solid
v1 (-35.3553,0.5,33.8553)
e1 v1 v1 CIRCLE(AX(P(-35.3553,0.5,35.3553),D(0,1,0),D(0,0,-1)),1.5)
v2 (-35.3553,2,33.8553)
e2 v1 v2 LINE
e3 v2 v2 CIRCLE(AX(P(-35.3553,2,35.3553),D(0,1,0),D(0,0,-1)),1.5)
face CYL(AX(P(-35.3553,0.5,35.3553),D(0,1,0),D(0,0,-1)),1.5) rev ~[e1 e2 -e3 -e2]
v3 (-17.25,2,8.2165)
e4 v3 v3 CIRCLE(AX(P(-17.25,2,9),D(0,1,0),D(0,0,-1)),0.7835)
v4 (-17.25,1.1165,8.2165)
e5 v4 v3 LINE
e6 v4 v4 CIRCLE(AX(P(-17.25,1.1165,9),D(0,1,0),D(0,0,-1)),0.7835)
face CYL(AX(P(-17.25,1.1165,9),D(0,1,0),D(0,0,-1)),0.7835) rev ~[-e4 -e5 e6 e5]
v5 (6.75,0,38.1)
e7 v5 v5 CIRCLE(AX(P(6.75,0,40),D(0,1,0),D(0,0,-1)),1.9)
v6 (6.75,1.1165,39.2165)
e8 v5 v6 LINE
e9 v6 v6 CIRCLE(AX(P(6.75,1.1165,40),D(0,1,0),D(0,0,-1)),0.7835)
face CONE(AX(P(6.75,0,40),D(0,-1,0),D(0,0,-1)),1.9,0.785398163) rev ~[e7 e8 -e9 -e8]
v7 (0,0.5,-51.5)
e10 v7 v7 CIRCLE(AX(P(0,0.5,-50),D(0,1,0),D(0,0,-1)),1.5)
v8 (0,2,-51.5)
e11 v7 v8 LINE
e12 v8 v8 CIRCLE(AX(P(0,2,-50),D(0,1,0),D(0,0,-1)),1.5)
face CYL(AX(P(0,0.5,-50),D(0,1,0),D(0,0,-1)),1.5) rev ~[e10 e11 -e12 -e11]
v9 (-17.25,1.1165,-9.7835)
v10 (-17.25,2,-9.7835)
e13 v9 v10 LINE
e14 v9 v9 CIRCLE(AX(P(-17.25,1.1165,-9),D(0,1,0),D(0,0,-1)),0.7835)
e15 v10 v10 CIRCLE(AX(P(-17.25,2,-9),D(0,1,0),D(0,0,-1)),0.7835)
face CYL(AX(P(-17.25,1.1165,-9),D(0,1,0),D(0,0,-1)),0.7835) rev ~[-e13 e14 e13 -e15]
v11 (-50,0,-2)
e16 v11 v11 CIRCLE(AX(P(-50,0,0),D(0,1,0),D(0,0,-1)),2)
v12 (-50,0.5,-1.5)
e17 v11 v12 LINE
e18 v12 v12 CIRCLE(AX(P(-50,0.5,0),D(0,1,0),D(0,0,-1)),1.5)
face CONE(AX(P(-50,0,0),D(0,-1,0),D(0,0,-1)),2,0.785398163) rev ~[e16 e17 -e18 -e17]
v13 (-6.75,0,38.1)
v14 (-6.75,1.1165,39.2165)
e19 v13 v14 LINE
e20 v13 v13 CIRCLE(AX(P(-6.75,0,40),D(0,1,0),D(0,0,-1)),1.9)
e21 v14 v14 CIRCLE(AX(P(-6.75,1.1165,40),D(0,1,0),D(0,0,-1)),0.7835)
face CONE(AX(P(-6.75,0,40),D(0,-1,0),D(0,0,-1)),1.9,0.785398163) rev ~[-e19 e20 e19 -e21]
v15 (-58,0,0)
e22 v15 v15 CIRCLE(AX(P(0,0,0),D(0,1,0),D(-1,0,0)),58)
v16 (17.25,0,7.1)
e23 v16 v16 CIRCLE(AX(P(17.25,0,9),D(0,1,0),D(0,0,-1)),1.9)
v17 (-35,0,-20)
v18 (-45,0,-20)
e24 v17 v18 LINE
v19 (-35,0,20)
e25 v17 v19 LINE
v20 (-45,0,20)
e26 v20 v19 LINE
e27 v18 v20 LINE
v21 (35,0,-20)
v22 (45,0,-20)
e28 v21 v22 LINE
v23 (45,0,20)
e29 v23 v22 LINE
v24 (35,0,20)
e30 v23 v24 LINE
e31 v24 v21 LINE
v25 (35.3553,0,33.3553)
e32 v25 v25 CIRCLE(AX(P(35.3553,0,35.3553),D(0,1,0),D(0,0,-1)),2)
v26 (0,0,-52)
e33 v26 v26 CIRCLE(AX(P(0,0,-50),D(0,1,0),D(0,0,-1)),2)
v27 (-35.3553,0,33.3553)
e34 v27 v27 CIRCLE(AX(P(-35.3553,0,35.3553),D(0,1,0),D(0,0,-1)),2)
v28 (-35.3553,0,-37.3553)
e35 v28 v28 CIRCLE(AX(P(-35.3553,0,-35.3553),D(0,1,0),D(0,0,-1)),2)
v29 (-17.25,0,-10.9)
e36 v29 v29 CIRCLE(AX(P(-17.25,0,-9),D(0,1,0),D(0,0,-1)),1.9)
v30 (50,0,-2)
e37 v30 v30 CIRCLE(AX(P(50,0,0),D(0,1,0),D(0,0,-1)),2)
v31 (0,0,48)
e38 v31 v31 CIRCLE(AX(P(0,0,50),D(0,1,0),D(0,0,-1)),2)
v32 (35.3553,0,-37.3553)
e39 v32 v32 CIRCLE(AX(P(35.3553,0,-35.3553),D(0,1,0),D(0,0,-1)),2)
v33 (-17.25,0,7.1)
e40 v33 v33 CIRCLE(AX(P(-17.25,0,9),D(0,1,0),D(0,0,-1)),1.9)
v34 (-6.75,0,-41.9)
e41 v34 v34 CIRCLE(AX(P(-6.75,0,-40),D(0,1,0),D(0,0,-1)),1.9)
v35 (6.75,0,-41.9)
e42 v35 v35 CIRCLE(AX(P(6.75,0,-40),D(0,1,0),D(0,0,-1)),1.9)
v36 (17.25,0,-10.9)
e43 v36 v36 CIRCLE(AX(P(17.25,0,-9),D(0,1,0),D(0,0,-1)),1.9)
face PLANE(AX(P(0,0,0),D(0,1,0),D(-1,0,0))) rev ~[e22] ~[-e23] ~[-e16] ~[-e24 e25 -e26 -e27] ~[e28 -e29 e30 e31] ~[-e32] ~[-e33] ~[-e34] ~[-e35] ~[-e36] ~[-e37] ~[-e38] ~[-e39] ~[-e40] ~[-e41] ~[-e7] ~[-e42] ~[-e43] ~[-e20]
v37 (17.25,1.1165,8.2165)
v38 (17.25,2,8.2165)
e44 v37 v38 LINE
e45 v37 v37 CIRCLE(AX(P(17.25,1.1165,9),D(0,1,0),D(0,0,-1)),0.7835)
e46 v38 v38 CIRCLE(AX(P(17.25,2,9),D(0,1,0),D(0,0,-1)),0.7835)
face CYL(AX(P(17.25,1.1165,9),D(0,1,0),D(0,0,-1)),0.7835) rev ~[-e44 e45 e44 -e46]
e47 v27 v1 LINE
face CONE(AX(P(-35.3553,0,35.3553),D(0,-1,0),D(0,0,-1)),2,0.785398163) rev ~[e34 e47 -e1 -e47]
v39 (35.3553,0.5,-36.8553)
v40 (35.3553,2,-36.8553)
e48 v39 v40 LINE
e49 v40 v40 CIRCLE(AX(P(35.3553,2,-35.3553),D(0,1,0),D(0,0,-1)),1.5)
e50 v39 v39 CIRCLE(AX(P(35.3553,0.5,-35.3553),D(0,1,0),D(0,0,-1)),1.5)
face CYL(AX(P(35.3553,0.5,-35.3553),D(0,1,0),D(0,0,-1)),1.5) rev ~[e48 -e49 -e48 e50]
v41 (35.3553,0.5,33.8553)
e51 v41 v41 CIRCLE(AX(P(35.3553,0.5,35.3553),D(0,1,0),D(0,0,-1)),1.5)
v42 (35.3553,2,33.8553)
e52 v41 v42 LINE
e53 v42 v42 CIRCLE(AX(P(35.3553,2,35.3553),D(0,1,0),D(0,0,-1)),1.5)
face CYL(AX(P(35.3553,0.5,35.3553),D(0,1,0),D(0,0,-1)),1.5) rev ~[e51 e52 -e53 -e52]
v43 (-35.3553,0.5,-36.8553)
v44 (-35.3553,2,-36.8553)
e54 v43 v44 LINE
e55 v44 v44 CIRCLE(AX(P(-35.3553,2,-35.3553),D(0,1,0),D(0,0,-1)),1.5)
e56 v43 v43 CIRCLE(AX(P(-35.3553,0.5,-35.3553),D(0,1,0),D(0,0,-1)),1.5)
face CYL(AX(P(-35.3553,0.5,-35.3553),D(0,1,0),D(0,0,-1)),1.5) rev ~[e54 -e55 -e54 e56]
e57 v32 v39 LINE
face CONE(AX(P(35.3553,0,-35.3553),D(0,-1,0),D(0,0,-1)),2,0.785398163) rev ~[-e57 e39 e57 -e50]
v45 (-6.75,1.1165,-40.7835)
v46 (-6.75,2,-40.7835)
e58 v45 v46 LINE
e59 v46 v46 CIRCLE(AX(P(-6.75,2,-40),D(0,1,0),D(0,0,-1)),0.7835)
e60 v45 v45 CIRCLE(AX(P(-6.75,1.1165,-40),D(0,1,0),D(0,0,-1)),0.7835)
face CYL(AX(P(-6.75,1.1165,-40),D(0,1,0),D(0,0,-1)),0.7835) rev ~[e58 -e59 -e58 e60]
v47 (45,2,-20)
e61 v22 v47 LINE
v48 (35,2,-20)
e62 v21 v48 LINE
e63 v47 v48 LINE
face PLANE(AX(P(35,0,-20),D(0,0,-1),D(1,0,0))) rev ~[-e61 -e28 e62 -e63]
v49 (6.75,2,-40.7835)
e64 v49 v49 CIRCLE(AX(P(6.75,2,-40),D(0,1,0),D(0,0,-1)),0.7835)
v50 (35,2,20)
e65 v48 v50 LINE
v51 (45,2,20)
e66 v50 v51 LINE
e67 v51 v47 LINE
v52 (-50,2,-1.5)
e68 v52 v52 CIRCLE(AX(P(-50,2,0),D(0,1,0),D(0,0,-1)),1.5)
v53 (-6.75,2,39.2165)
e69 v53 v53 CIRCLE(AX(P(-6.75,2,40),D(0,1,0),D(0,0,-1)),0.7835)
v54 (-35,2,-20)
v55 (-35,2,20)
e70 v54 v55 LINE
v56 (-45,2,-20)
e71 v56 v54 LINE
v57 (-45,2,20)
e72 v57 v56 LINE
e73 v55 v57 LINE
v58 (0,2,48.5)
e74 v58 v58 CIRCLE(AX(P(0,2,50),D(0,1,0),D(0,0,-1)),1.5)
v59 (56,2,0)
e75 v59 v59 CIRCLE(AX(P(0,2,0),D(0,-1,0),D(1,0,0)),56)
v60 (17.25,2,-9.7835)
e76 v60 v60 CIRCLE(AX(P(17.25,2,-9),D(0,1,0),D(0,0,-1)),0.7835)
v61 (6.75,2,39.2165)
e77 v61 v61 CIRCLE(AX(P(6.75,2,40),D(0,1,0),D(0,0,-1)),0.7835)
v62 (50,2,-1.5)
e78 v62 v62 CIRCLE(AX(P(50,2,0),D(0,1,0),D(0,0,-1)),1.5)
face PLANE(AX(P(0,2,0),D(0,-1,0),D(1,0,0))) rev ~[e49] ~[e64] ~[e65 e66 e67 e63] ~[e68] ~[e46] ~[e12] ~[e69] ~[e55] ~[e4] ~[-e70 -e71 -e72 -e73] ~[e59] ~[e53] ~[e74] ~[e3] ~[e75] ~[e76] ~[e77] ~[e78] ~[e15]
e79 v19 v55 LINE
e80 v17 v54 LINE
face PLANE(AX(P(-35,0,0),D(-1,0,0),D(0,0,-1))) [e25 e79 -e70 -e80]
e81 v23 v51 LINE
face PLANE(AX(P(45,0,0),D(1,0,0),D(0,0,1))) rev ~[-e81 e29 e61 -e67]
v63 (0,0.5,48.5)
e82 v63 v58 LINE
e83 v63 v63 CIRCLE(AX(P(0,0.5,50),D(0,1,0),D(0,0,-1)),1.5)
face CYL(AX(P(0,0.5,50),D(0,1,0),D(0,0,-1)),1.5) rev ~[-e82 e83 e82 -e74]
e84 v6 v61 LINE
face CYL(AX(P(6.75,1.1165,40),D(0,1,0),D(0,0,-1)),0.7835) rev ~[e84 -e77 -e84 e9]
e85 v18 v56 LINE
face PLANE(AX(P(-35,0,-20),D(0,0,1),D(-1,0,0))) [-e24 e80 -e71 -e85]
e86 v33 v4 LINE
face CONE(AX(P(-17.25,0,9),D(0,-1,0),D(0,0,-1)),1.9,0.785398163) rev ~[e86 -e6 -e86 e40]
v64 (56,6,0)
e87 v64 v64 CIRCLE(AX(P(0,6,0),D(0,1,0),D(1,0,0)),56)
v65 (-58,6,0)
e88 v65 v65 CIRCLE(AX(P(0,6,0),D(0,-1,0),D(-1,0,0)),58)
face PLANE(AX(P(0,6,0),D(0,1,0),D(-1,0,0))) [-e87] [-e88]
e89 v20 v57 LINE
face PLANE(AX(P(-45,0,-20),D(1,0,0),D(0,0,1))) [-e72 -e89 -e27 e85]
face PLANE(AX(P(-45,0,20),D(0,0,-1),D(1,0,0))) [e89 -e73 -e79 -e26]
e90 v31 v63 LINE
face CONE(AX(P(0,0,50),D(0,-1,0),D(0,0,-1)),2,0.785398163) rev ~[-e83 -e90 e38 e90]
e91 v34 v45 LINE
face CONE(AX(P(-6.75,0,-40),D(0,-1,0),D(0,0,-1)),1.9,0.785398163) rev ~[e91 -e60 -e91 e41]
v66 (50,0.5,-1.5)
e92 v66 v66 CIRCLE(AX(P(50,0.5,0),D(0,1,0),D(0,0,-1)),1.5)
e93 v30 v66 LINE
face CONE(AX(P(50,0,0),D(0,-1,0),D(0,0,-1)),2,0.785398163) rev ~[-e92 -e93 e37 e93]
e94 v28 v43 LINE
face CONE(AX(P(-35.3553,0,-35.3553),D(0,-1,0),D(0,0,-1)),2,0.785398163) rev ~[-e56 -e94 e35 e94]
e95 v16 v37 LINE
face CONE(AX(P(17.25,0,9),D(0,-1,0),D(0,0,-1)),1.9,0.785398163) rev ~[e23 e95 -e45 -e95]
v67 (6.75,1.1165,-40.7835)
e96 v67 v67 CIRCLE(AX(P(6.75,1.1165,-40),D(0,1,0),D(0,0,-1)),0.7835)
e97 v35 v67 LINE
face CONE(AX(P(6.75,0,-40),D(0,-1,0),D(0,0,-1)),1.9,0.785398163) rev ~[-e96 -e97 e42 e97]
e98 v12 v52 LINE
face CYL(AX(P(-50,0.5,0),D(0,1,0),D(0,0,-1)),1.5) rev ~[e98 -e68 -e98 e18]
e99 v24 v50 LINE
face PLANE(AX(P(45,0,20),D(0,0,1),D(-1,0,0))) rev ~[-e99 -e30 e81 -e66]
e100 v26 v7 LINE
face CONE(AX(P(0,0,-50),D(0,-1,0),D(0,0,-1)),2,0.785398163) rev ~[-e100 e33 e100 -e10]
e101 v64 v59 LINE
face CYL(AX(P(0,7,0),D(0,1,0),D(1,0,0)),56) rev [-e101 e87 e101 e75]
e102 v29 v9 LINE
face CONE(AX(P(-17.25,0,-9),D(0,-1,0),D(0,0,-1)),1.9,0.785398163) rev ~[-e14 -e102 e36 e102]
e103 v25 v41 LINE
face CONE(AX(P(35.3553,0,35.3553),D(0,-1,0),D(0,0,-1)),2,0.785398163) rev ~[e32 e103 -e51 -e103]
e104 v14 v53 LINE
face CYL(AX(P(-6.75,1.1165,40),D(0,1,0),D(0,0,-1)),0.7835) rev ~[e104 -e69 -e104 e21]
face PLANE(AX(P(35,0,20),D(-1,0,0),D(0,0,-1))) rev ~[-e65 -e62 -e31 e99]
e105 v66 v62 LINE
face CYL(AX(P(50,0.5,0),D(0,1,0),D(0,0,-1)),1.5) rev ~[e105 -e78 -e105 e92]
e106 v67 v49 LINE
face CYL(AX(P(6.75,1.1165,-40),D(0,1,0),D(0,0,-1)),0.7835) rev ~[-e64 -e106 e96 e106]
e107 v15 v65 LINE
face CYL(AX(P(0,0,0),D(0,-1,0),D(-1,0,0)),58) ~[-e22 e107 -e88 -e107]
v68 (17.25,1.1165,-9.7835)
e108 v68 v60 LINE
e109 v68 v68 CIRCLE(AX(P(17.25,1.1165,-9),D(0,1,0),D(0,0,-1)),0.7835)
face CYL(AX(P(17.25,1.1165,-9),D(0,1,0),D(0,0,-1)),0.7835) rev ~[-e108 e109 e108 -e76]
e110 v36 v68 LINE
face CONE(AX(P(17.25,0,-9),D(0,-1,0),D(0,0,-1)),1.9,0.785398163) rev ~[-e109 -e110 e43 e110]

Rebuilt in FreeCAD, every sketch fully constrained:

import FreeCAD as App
import Part
import Sketcher


def add_polygon(sketch, points):
    """Adds a closed chain of lines whose ends are joined by coincident constraints."""
    first, n = sketch.GeometryCount, len(points)
    for a, b in zip(points, points[1:] + points[:1]):
        sketch.addGeometry(Part.LineSegment(App.Vector(*a, 0), App.Vector(*b, 0)), False)
    for i in range(n):
        sketch.addConstraint(Sketcher.Constraint("Coincident", first + i, 2, first + (i + 1) % n, 1))

doc = App.newDocument("Part")
body = doc.addObject("PartDesign::Body", "Body")

sketch1 = doc.addObject("Sketcher::SketchObject", "Sketch")
body.addObject(sketch1)
sketch1.AttachmentSupport = (doc.XZ_Plane, [""])
sketch1.MapMode = "FlatFace"
sketch1.addGeometry(Part.Circle(App.Vector(0, 0, 0), App.Vector(0, 0, 1), 58), False)
sketch1.addConstraint(Sketcher.Constraint("Coincident", 0, 3, -1, 1))
sketch1.addConstraint(Sketcher.Constraint("Diameter", 0, 116.0))
pad1 = doc.addObject("PartDesign::Pad", "Pad")
body.addObject(pad1)
pad1.Profile = sketch1
pad1.Length = 6
pad1.Reversed = True

sketch2 = doc.addObject("Sketcher::SketchObject", "Sketch001")
body.addObject(sketch2)
sketch2.AttachmentSupport = (doc.XZ_Plane, [""])
sketch2.MapMode = "FlatFace"
sketch2.addGeometry(Part.Circle(App.Vector(35.3553, 35.3553, 0), App.Vector(0, 0, 1), 1.5), False)
sketch2.addConstraint(Sketcher.Constraint("Diameter", 0, 3.0))
sketch2.addConstraint(Sketcher.Constraint("DistanceX", -1, 1, 0, 3, 35.3553))
sketch2.addConstraint(Sketcher.Constraint("DistanceY", -1, 1, 0, 3, 35.3553))
doc.recompute()
hole = doc.addObject("PartDesign::Hole", "Hole")
body.addObject(hole)
hole.Profile = sketch2
hole.ThreadType = "None"
hole.Diameter = 3
hole.DepthType = "ThroughAll"
hole.HoleCutType = "Countersink"
hole.HoleCutDiameter = 4
hole.HoleCutCountersinkAngle = 90

sketch3 = doc.addObject("Sketcher::SketchObject", "Sketch002")
body.addObject(sketch3)
sketch3.AttachmentSupport = (doc.XZ_Plane, [""])
sketch3.MapMode = "FlatFace"
sketch3.addGeometry(Part.Circle(App.Vector(0, 50, 0), App.Vector(0, 0, 1), 1.5), False)
sketch3.addGeometry(Part.Circle(App.Vector(-35.3553, 35.3553, 0), App.Vector(0, 0, 1), 1.5), False)
sketch3.addGeometry(Part.Circle(App.Vector(-50, 0, 0), App.Vector(0, 0, 1), 1.5), False)
sketch3.addGeometry(Part.Circle(App.Vector(-35.3553, -35.3553, 0), App.Vector(0, 0, 1), 1.5), False)
sketch3.addGeometry(Part.Circle(App.Vector(0, -50, 0), App.Vector(0, 0, 1), 1.5), False)
sketch3.addGeometry(Part.Circle(App.Vector(35.3553, -35.3553, 0), App.Vector(0, 0, 1), 1.5), False)
sketch3.addGeometry(Part.Circle(App.Vector(50, 0, 0), App.Vector(0, 0, 1), 1.5), False)
sketch3.addConstraint(Sketcher.Constraint("Equal", 0, 1))
sketch3.addConstraint(Sketcher.Constraint("Equal", 1, 2))
sketch3.addConstraint(Sketcher.Constraint("Equal", 2, 3))
sketch3.addConstraint(Sketcher.Constraint("Equal", 3, 4))
sketch3.addConstraint(Sketcher.Constraint("Equal", 4, 5))
sketch3.addConstraint(Sketcher.Constraint("Equal", 5, 6))
sketch3.addConstraint(Sketcher.Constraint("Symmetric", 0, 3, 4, 3, -1, 1))
sketch3.addConstraint(Sketcher.Constraint("Symmetric", 1, 3, 5, 3, -1, 1))
sketch3.addConstraint(Sketcher.Constraint("Symmetric", 2, 3, 6, 3, -1, 1))
sketch3.addConstraint(Sketcher.Constraint("Symmetric", 3, 3, 5, 3, -2))
sketch3.addConstraint(Sketcher.Constraint("PointOnObject", 0, 3, -2))
sketch3.addConstraint(Sketcher.Constraint("PointOnObject", 2, 3, -1))
sketch3.addConstraint(Sketcher.Constraint("Diameter", 0, 3.0))
sketch3.addConstraint(Sketcher.Constraint("DistanceY", -1, 1, 0, 3, 50.0))
sketch3.addConstraint(Sketcher.Constraint("DistanceX", 2, 3, -1, 1, 50.0))
sketch3.addConstraint(Sketcher.Constraint("DistanceX", 1, 3, -1, 1, 35.3553))
sketch3.addConstraint(Sketcher.Constraint("DistanceY", -1, 1, 1, 3, 35.3553))
doc.recompute()
hole2 = doc.addObject("PartDesign::Hole", "Hole001")
body.addObject(hole2)
hole2.Profile = sketch3
hole2.ThreadType = "None"
hole2.Diameter = 3
hole2.DepthType = "ThroughAll"
hole2.HoleCutType = "Countersink"
hole2.HoleCutDiameter = 4
hole2.HoleCutCountersinkAngle = 90

sketch4 = doc.addObject("Sketcher::SketchObject", "Sketch003")
body.addObject(sketch4)
sketch4.AttachmentSupport = (doc.XZ_Plane, [""])
sketch4.MapMode = "FlatFace"
add_polygon(sketch4, [(-45, -20), (-45, 20), (-35, 20), (-35, -20)])
add_polygon(sketch4, [(45, 20), (45, -20), (35, -20), (35, 20)])
sketch4.addConstraint(Sketcher.Constraint("Vertical", 0))
sketch4.addConstraint(Sketcher.Constraint("Horizontal", 1))
sketch4.addConstraint(Sketcher.Constraint("Vertical", 2))
sketch4.addConstraint(Sketcher.Constraint("Horizontal", 3))
sketch4.addConstraint(Sketcher.Constraint("Vertical", 4))
sketch4.addConstraint(Sketcher.Constraint("Horizontal", 5))
sketch4.addConstraint(Sketcher.Constraint("Vertical", 6))
sketch4.addConstraint(Sketcher.Constraint("Horizontal", 7))
sketch4.addConstraint(Sketcher.Constraint("Symmetric", 0, 2, 4, 2, -1, 1))
sketch4.addConstraint(Sketcher.Constraint("Symmetric", 2, 2, 6, 2, -1, 1))
sketch4.addConstraint(Sketcher.Constraint("Horizontal", 3, 2, 4, 2))
sketch4.addConstraint(Sketcher.Constraint("DistanceX", 1, 1, 1, 2, 10.0))
sketch4.addConstraint(Sketcher.Constraint("DistanceY", 0, 1, 0, 2, 40.0))
sketch4.addConstraint(Sketcher.Constraint("DistanceX", 0, 2, -1, 1, 45.0))
pocket1 = doc.addObject("PartDesign::Pocket", "Pocket")
body.addObject(pocket1)
pocket1.Profile = sketch4
pocket1.Type = "ThroughAll"

sketch5 = doc.addObject("Sketcher::SketchObject", "Sketch004")
body.addObject(sketch5)
sketch5.AttachmentSupport = (doc.XZ_Plane, [""])
sketch5.MapMode = "FlatFace"
sketch5.addGeometry(Part.Circle(App.Vector(6.75, -40, 0), App.Vector(0, 0, 1), 0.7835), False)
sketch5.addGeometry(Part.Circle(App.Vector(-6.75, -40, 0), App.Vector(0, 0, 1), 0.7835), False)
sketch5.addGeometry(Part.Circle(App.Vector(6.75, 40, 0), App.Vector(0, 0, 1), 0.7835), False)
sketch5.addGeometry(Part.Circle(App.Vector(-6.75, 40, 0), App.Vector(0, 0, 1), 0.7835), False)
sketch5.addGeometry(Part.Circle(App.Vector(-17.25, -9, 0), App.Vector(0, 0, 1), 0.7835), False)
sketch5.addGeometry(Part.Circle(App.Vector(-17.25, 9, 0), App.Vector(0, 0, 1), 0.7835), False)
sketch5.addGeometry(Part.Circle(App.Vector(17.25, -9, 0), App.Vector(0, 0, 1), 0.7835), False)
sketch5.addGeometry(Part.Circle(App.Vector(17.25, 9, 0), App.Vector(0, 0, 1), 0.7835), False)
sketch5.addConstraint(Sketcher.Constraint("Equal", 0, 1))
sketch5.addConstraint(Sketcher.Constraint("Equal", 1, 2))
sketch5.addConstraint(Sketcher.Constraint("Equal", 2, 3))
sketch5.addConstraint(Sketcher.Constraint("Equal", 3, 4))
sketch5.addConstraint(Sketcher.Constraint("Equal", 4, 5))
sketch5.addConstraint(Sketcher.Constraint("Equal", 5, 6))
sketch5.addConstraint(Sketcher.Constraint("Equal", 6, 7))
sketch5.addConstraint(Sketcher.Constraint("Symmetric", 1, 3, 2, 3, -1, 1))
sketch5.addConstraint(Sketcher.Constraint("Symmetric", 0, 3, 3, 3, -1, 1))
sketch5.addConstraint(Sketcher.Constraint("Symmetric", 5, 3, 6, 3, -1, 1))
sketch5.addConstraint(Sketcher.Constraint("Symmetric", 4, 3, 7, 3, -1, 1))
sketch5.addConstraint(Sketcher.Constraint("Symmetric", 0, 3, 1, 3, -2))
sketch5.addConstraint(Sketcher.Constraint("Symmetric", 4, 3, 6, 3, -2))
sketch5.addConstraint(Sketcher.Constraint("Diameter", 0, 1.567))
sketch5.addConstraint(Sketcher.Constraint("DistanceY", 0, 3, -1, 1, 40.0))
sketch5.addConstraint(Sketcher.Constraint("DistanceY", 4, 3, -1, 1, 9.0))
sketch5.addConstraint(Sketcher.Constraint("DistanceX", 4, 3, 0, 3, 24.0))
sketch5.addConstraint(Sketcher.Constraint("DistanceX", 1, 3, 0, 3, 13.5))
doc.recompute()
hole3 = doc.addObject("PartDesign::Hole", "Hole002")
body.addObject(hole3)
hole3.Profile = sketch5
hole3.ThreadType = "None"
hole3.Diameter = 1.567
hole3.DepthType = "ThroughAll"
hole3.HoleCutType = "Countersink"
hole3.HoleCutDiameter = 3.8
hole3.HoleCutCountersinkAngle = 90

sketch6 = doc.addObject("Sketcher::SketchObject", "Sketch005")
body.addObject(sketch6)
sketch6.AttachmentSupport = (doc.XZ_Plane, [""])
sketch6.MapMode = "FlatFace"
sketch6.AttachmentOffset = App.Placement(App.Vector(0, 0, -7), App.Rotation())
sketch6.addGeometry(Part.Circle(App.Vector(0, 0, 0), App.Vector(0, 0, 1), 56), False)
sketch6.addConstraint(Sketcher.Constraint("Coincident", 0, 3, -1, 1))
sketch6.addConstraint(Sketcher.Constraint("Diameter", 0, 112.0))
pocket2 = doc.addObject("PartDesign::Pocket", "Pocket001")
body.addObject(pocket2)
pocket2.Profile = sketch6
pocket2.Length = 5
pocket2.Reversed = True

doc.recompute()
